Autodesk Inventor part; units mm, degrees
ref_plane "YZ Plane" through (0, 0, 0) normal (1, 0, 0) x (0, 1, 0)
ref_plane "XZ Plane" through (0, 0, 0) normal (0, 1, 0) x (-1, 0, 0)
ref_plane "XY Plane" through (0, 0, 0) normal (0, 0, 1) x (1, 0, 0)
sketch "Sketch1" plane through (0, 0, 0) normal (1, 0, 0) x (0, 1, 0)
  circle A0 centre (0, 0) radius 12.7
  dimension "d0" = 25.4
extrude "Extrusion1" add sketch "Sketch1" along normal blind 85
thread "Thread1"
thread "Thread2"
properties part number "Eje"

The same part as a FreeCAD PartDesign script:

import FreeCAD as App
import Part
import Sketcher

V = App.Vector

doc = App.newDocument("Part")
body = doc.addObject("PartDesign::Body", "Body")

# Sketch on YZ plane
sketch1 = doc.addObject("Sketcher::SketchObject", "Sketch")
body.addObject(sketch1)
sketch1.AttachmentSupport = (doc.YZ_Plane, [""])
sketch1.MapMode = "FlatFace"
sketch1.addGeometry(Part.Circle(V(0, 0, 0), V(0, 0, 1), 13), False)
sketch1.addConstraint([
    Sketcher.Constraint("Coincident", 0, 3, -1, 1),
    Sketcher.Constraint("Diameter", 0, 25.4),
])
pad1 = doc.addObject("PartDesign::Pad", "Pad")
body.addObject(pad1)
pad1.Profile = sketch1
pad1.Length = 85

doc.recompute()
